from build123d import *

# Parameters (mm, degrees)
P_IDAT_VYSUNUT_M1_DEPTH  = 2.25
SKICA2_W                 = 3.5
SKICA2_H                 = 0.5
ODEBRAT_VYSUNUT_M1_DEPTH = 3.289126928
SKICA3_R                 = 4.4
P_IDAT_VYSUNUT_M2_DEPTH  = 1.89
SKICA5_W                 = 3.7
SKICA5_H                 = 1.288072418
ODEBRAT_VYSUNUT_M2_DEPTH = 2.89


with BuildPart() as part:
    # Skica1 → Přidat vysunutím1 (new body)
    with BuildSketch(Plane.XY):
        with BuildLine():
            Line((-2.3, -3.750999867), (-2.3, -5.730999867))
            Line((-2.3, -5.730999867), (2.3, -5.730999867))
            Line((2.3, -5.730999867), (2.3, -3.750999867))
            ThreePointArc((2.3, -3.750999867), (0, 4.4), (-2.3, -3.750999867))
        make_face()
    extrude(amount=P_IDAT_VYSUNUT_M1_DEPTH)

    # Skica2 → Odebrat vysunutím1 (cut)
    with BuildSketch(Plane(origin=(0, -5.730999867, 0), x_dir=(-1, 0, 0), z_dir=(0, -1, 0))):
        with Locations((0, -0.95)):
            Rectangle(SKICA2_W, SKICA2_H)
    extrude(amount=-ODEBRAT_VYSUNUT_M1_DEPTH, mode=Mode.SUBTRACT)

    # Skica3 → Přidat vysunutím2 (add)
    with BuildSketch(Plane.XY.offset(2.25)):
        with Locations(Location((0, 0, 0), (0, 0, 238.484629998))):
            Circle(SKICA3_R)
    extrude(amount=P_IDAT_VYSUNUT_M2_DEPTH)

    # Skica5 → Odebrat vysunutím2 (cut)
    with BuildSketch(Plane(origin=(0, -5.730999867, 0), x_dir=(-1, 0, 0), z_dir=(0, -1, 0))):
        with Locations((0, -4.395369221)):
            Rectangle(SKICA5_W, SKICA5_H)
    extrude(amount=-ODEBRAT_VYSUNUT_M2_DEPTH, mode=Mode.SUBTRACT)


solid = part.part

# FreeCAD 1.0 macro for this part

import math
import FreeCAD as App
import Part
import Sketcher
Q = App.Units.Quantity

doc = App.newDocument("Part")
body = doc.addObject("PartDesign::Body", "Body")

# Sketch on XY plane
sketch1 = body.newObject("Sketcher::SketchObject", "Sketch")
sketch1.AttachmentSupport = (doc.getObject("XY_Plane"), [""])
sketch1.MapMode = "FlatFace"
sketch1.addGeometry([
    Part.LineSegment(App.Vector(-2.3, -3.751, 0), App.Vector(-2.3, -5.731, 0)),
    Part.LineSegment(App.Vector(-2.3, -5.731, 0), App.Vector(2.3, -5.731, 0)),
    Part.LineSegment(App.Vector(2.3, -5.731, 0), App.Vector(2.3, -3.751, 0)),
    Part.ArcOfCircle(Part.Circle(App.Vector(0, 0, 0), App.Vector(0, 0, 1), 4.4), math.radians(-58.48463), math.radians(238.48463)),
], False)
sketch1.addConstraint([
    Sketcher.Constraint("Coincident", 0, 2, 1, 1),
    Sketcher.Constraint("Coincident", 1, 2, 2, 1),
    Sketcher.Constraint("Coincident", 2, 2, 3, 1),
    Sketcher.Constraint("Coincident", 3, 2, 0, 1),
    Sketcher.Constraint("Vertical", 0),
    Sketcher.Constraint("Horizontal", 1),
    Sketcher.Constraint("Vertical", 2),
    Sketcher.Constraint("Coincident", 3, 3, -1, 1),
    Sketcher.Constraint("Horizontal", 2, 2, 3, 2),
    Sketcher.Constraint("Radius", 3, Q("4.4 mm")),
    Sketcher.Constraint("DistanceX", 1, 1, 1, 2, Q("4.6 mm")),
    Sketcher.Constraint("DistanceY", 0, 2, 0, 1, Q("1.98 mm")),
])
pad1 = body.newObject("PartDesign::Pad", "Pad")
pad1.Profile = sketch1
pad1.Length = 2.25

# Sketch on XZ plane
sketch2 = body.newObject("Sketcher::SketchObject", "Sketch001")
sketch2.AttachmentSupport = (doc.getObject("XZ_Plane"), [""])
sketch2.MapMode = "FlatFace"
sketch2.AttachmentOffset = App.Placement(App.Vector(0, 0, 5.731), App.Rotation())
sketch2.addGeometry([
    Part.LineSegment(App.Vector(1.75, 0.7, 0), App.Vector(1.75, 1.2, 0)),
    Part.LineSegment(App.Vector(1.75, 1.2, 0), App.Vector(-1.75, 1.2, 0)),
    Part.LineSegment(App.Vector(-1.75, 1.2, 0), App.Vector(-1.75, 0.7, 0)),
    Part.LineSegment(App.Vector(-1.75, 0.7, 0), App.Vector(1.75, 0.7, 0)),
], False)
sketch2.addConstraint([
    Sketcher.Constraint("Coincident", 0, 2, 1, 1),
    Sketcher.Constraint("Coincident", 1, 2, 2, 1),
    Sketcher.Constraint("Coincident", 2, 2, 3, 1),
    Sketcher.Constraint("Coincident", 3, 2, 0, 1),
    Sketcher.Constraint("Vertical", 0),
    Sketcher.Constraint("Horizontal", 1),
    Sketcher.Constraint("Vertical", 2),
    Sketcher.Constraint("Horizontal", 3),
    Sketcher.Constraint("DistanceX", 1, 2, 1, 1, Q("3.5 mm")),
    Sketcher.Constraint("DistanceY", 0, 1, 0, 2, Q("0.5 mm")),
    Sketcher.Constraint("DistanceY", -1, 1, 0, 2, Q("1.2 mm")),
    Sketcher.Constraint("DistanceX", -1, 1, 0, 2, Q("1.75 mm")),
])
pocket1 = body.newObject("PartDesign::Pocket", "Pocket")
pocket1.Profile = sketch2
pocket1.Length = 3.289127

# Sketch on XY plane
sketch3 = body.newObject("Sketcher::SketchObject", "Sketch002")
sketch3.AttachmentSupport = (doc.getObject("XY_Plane"), [""])
sketch3.MapMode = "FlatFace"
sketch3.AttachmentOffset = App.Placement(App.Vector(0, 0, 2.25), App.Rotation())
sketch3.addGeometry(Part.Circle(App.Vector(0, 0, 0), App.Vector(0, 0, 1), 4.4), False)
sketch3.addConstraint([
    Sketcher.Constraint("Coincident", 0, 3, -1, 1),
    Sketcher.Constraint("Diameter", 0, Q("8.8 mm")),
])
pad2 = body.newObject("PartDesign::Pad", "Pad001")
pad2.Profile = sketch3
pad2.Length = 1.89

# Sketch on XZ plane
sketch4 = body.newObject("Sketcher::SketchObject", "Sketch003")
sketch4.AttachmentSupport = (doc.getObject("XZ_Plane"), [""])
sketch4.MapMode = "FlatFace"
sketch4.AttachmentOffset = App.Placement(App.Vector(0, 0, 5.731), App.Rotation())
sketch4.addGeometry([
    Part.LineSegment(App.Vector(1.85, 3.751333, 0), App.Vector(1.85, 5.039405, 0)),
    Part.LineSegment(App.Vector(1.85, 5.039405, 0), App.Vector(-1.85, 5.039405, 0)),
    Part.LineSegment(App.Vector(-1.85, 5.039405, 0), App.Vector(-1.85, 3.751333, 0)),
    Part.LineSegment(App.Vector(-1.85, 3.751333, 0), App.Vector(1.85, 3.751333, 0)),
], False)
sketch4.addConstraint([
    Sketcher.Constraint("Coincident", 0, 2, 1, 1),
    Sketcher.Constraint("Coincident", 1, 2, 2, 1),
    Sketcher.Constraint("Coincident", 2, 2, 3, 1),
    Sketcher.Constraint("Coincident", 3, 2, 0, 1),
    Sketcher.Constraint("Vertical", 0),
    Sketcher.Constraint("Horizontal", 1),
    Sketcher.Constraint("Vertical", 2),
    Sketcher.Constraint("Horizontal", 3),
    Sketcher.Constraint("DistanceX", 1, 2, 1, 1, Q("3.7 mm")),
    Sketcher.Constraint("DistanceX", -1, 1, 0, 2, Q("1.85 mm")),
    Sketcher.Constraint("DistanceY", 0, 1, 0, 2, Q("1.288072 mm")),
    Sketcher.Constraint("DistanceY", -1, 1, 0, 2, Q("5.039405 mm")),
])
pocket2 = body.newObject("PartDesign::Pocket", "Pocket001")
pocket2.Profile = sketch4
pocket2.Length = 2.89

doc.recompute()
